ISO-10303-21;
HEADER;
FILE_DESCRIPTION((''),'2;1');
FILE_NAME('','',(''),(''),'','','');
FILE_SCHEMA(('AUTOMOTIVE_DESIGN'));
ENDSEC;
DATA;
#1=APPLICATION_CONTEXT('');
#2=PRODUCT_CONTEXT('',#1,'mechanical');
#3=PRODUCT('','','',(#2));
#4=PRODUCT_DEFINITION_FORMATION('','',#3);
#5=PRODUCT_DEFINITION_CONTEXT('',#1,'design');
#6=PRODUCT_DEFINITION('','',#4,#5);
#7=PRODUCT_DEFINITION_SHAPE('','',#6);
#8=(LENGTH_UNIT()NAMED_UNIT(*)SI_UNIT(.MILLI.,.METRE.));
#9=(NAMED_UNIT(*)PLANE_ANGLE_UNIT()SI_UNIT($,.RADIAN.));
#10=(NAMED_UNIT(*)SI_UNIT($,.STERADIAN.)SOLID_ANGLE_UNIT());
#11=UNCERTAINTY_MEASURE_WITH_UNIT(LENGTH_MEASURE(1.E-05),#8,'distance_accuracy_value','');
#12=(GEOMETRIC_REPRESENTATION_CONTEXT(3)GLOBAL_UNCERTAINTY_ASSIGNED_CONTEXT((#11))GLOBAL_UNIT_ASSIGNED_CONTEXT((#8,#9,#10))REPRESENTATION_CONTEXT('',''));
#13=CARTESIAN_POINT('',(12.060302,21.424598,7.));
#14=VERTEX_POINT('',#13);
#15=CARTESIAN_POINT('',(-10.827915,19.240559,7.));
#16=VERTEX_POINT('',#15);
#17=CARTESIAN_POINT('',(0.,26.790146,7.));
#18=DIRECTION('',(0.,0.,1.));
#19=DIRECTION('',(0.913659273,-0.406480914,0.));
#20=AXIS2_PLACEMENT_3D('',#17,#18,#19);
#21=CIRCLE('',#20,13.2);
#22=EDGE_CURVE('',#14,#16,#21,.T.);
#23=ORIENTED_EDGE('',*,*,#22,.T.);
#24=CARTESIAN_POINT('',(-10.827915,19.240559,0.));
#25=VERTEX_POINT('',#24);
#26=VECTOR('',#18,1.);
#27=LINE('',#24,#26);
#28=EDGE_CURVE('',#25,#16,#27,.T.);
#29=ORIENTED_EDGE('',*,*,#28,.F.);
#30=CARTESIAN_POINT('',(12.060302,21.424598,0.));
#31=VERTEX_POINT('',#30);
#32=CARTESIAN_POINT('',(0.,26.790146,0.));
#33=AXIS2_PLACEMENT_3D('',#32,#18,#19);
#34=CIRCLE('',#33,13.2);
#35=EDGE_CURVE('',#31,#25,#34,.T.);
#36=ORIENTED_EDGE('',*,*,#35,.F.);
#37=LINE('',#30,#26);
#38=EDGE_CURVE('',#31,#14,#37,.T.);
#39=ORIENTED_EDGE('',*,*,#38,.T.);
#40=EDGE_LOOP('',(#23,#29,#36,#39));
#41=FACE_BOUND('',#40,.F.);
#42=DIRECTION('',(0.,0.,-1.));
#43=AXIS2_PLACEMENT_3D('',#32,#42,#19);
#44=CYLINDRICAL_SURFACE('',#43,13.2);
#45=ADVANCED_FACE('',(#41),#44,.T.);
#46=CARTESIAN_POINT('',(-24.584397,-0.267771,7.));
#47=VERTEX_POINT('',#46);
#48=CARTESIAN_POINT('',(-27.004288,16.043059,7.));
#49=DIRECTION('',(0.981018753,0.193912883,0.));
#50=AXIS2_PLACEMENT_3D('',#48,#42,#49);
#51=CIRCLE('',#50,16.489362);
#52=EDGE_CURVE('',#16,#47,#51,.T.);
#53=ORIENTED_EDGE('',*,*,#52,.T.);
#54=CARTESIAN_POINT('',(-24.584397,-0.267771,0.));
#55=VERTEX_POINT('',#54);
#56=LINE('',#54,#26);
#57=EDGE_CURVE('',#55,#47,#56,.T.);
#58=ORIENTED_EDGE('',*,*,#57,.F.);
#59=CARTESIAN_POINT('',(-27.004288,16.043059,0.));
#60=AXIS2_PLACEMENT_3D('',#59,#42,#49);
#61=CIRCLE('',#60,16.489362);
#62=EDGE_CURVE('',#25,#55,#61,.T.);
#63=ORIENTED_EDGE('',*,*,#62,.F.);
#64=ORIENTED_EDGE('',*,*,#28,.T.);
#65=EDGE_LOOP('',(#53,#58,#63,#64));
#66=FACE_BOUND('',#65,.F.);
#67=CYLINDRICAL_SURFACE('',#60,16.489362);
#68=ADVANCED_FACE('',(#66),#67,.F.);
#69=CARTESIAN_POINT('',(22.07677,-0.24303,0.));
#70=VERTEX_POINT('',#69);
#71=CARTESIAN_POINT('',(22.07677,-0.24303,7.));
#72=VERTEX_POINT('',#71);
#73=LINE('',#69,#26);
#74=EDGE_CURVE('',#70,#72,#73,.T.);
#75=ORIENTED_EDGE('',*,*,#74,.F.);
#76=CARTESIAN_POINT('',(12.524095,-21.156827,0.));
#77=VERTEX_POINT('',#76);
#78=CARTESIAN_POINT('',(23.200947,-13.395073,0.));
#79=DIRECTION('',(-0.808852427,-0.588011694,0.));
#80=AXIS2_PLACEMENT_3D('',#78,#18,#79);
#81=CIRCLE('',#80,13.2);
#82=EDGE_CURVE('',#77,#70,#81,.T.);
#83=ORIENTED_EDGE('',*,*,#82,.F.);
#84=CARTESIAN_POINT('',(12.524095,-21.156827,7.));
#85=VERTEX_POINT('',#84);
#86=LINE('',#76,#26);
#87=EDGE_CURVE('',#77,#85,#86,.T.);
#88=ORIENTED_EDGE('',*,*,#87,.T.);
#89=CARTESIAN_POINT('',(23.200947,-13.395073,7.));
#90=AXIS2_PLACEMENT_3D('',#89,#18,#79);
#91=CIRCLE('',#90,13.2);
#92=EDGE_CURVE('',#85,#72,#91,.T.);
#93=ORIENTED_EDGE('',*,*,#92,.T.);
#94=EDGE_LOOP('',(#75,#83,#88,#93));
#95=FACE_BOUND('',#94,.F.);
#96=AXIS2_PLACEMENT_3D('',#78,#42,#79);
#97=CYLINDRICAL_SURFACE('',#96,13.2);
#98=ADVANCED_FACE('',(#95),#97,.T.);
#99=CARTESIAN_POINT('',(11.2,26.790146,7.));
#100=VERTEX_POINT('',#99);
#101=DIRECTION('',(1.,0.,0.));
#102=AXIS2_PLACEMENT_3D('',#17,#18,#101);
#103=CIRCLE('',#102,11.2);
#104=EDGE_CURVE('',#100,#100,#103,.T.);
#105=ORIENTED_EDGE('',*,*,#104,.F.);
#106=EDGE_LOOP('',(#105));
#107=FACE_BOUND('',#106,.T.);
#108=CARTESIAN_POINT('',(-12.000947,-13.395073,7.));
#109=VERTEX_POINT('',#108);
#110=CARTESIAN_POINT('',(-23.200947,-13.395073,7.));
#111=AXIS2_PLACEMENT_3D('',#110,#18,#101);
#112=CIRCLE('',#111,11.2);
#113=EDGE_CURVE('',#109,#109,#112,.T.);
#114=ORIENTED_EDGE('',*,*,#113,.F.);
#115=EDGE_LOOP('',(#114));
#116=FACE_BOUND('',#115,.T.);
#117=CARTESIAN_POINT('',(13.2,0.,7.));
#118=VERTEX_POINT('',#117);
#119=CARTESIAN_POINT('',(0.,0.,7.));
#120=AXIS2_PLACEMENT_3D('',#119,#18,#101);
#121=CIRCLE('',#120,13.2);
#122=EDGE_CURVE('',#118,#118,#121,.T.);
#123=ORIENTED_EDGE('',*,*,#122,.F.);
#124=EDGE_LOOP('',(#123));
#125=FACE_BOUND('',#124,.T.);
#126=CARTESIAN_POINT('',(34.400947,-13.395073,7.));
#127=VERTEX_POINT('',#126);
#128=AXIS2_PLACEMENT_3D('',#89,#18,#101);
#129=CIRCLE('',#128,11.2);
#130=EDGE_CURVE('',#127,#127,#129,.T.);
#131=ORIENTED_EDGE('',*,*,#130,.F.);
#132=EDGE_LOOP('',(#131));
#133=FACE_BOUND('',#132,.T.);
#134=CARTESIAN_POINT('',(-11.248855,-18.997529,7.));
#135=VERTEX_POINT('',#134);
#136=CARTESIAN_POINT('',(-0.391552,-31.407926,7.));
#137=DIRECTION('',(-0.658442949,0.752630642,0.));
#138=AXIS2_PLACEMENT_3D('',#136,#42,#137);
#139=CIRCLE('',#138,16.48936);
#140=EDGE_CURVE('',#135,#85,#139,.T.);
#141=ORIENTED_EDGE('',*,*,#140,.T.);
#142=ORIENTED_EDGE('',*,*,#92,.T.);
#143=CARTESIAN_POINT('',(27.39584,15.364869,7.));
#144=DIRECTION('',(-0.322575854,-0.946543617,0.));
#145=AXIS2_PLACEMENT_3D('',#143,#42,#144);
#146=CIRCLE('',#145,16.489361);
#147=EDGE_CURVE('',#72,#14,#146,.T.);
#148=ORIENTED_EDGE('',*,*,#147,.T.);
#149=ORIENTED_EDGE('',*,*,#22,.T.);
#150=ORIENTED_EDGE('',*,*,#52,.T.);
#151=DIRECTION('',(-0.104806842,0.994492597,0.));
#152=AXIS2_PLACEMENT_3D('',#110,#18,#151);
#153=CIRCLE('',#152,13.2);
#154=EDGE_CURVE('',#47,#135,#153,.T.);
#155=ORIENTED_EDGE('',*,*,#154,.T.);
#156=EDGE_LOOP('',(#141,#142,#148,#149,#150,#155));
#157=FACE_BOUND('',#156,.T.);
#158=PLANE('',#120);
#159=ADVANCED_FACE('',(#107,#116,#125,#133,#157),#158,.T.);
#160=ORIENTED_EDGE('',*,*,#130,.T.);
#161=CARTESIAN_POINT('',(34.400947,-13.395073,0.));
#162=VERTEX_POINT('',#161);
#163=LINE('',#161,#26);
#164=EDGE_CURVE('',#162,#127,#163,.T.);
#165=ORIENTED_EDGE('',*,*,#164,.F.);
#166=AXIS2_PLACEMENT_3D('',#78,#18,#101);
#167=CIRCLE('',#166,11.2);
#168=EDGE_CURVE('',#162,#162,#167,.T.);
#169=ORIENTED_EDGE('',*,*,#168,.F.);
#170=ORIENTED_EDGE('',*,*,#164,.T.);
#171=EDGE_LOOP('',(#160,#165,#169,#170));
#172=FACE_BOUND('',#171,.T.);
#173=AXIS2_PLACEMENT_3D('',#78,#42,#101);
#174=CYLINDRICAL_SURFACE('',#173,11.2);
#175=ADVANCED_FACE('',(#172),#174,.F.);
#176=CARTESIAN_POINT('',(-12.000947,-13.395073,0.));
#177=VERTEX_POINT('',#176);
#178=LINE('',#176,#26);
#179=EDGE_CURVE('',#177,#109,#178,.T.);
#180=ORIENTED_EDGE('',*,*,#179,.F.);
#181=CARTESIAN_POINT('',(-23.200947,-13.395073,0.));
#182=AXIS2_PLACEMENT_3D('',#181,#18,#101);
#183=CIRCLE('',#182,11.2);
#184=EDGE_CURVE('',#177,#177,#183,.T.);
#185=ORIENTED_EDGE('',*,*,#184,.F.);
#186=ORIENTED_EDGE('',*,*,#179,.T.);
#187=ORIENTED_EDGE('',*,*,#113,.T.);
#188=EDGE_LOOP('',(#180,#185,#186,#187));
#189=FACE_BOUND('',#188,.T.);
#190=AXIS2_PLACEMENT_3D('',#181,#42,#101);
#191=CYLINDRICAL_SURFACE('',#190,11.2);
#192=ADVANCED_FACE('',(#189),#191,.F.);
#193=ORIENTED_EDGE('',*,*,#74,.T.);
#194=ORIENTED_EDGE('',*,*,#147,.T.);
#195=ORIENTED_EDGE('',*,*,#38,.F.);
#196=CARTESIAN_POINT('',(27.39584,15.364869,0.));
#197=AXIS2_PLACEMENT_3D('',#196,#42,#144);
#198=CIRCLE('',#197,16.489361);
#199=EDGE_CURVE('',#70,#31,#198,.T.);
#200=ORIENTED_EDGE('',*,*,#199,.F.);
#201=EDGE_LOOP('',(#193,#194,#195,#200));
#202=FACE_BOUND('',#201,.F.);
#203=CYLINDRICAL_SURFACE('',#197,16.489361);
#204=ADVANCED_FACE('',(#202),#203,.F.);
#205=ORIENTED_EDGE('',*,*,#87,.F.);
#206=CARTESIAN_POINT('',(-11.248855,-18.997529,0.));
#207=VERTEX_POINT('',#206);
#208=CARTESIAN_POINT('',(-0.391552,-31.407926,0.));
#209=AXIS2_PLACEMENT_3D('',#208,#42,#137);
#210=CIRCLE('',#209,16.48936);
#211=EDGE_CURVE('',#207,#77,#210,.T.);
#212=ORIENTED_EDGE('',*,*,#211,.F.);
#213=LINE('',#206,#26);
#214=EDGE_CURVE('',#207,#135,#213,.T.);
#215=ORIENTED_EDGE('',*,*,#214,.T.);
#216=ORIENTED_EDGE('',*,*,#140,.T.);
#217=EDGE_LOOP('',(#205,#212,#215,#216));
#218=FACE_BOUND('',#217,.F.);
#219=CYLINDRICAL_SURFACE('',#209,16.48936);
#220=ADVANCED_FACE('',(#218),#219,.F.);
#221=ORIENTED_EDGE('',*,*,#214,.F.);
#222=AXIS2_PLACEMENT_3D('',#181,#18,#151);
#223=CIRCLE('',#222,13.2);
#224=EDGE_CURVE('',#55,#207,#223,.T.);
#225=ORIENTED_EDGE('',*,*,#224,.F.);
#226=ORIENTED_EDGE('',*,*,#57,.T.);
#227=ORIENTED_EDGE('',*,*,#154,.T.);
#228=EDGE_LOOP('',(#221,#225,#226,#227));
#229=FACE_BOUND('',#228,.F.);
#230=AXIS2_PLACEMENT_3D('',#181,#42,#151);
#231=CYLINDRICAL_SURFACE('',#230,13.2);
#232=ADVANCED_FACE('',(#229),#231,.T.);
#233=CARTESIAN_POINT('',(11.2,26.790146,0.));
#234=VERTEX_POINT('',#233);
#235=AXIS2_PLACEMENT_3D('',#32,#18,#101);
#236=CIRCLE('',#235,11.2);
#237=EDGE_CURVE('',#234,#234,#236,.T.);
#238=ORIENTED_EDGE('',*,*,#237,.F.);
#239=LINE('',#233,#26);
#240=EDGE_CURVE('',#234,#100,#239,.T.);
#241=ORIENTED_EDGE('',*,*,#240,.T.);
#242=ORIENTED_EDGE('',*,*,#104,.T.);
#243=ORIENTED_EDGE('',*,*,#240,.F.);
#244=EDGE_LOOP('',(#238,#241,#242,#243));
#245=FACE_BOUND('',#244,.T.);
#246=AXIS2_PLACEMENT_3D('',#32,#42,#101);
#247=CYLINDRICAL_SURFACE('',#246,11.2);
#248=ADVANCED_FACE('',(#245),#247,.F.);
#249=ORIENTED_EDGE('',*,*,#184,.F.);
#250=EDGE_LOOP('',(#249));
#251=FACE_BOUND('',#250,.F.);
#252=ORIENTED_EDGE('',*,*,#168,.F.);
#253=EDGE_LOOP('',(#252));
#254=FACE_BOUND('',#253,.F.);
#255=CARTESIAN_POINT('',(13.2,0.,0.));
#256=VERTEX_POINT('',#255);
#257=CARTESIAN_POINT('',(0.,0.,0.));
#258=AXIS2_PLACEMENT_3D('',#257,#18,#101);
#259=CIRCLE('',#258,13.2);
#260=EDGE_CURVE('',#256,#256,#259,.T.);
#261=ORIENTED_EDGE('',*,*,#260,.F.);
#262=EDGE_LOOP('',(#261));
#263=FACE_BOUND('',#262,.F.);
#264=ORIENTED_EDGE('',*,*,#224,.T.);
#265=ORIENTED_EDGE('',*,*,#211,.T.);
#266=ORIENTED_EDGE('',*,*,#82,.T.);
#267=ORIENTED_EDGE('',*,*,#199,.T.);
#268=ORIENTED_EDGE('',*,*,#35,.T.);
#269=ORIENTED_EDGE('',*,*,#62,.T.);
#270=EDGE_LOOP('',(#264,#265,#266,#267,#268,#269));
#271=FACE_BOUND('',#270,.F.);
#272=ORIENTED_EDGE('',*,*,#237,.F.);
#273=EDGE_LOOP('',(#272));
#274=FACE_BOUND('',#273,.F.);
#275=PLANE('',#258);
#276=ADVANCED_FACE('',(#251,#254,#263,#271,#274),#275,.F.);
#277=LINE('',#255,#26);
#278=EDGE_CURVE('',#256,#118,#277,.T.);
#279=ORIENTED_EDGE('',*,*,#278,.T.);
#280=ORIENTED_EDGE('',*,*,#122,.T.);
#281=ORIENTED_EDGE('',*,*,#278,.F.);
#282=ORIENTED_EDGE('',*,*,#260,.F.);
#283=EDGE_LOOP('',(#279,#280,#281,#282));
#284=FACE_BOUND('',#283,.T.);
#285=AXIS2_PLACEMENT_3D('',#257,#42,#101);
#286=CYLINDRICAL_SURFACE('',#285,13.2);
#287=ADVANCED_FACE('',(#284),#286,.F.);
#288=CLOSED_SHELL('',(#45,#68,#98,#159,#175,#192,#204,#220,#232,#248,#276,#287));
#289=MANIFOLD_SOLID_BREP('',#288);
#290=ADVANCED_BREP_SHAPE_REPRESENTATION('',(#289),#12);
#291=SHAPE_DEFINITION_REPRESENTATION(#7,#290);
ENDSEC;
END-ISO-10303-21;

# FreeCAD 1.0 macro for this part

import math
import FreeCAD as App
import Part
import Sketcher
Q = App.Units.Quantity

doc = App.newDocument("Part")
params = doc.addObject("Spreadsheet::Sheet", "Params")
for row, (alias, value) in enumerate([
    ("sketch1_diameter", "22.4 mm"),
    ("sketch1_diameter2", "22.4 mm"),
    ("sketch1_diameter3", "26.4 mm"),
    ("sketch1_diameter4", "22.4 mm"),
    ("sketch1_radius", "13.2 mm"),
    ("pad1_length", "7 mm"),
], start=1):
    params.set(f"A{row}", alias)
    params.set(f"B{row}", "=" + value)
    params.setAlias(f"B{row}", alias)

body = doc.addObject("PartDesign::Body", "Body")

# Sketch on XY plane
sketch1 = body.newObject("Sketcher::SketchObject", "Sketch")
sketch1.AttachmentSupport = (doc.getObject("XY_Plane"), [""])
sketch1.MapMode = "FlatFace"
sketch1.addGeometry([
    Part.ArcOfCircle(Part.Circle(App.Vector(27.39584, 15.364869, 0), App.Vector(0, 0, 1), 16.489361), math.radians(158.438899), math.radians(251.181227)),  # 0
    Part.ArcOfCircle(Part.Circle(App.Vector(0, 26.790146, 0), App.Vector(0, 0, 1), 13.2), math.radians(-23.983962), math.radians(214.885508)),  # 1
    Part.ArcOfCircle(Part.Circle(App.Vector(-27.004288, 16.043059, 0), App.Vector(0, 0, 1), 16.489362), math.radians(-81.561097), math.radians(11.181224)),  # 2
    Part.ArcOfCircle(Part.Circle(App.Vector(-23.200947, -13.395073, 0), App.Vector(0, 0, 1), 13.2), math.radians(96.016038), math.radians(334.885509)),  # 3
    Part.ArcOfCircle(Part.Circle(App.Vector(-0.391552, -31.407926, 0), App.Vector(0, 0, 1), 16.48936), math.radians(38.438895), math.radians(131.181231)),  # 4
    Part.ArcOfCircle(Part.Circle(App.Vector(23.200947, -13.395073, 0), App.Vector(0, 0, 1), 13.2), math.radians(-143.983961), math.radians(94.885509)),  # 5
    Part.Circle(App.Vector(-23.200947, -13.395073, 0), App.Vector(0, 0, 1), 11.2),  # 6
    Part.Circle(App.Vector(23.200947, -13.395073, 0), App.Vector(0, 0, 1), 11.2),  # 7
    Part.Circle(App.Vector(0, 0, 0), App.Vector(0, 0, 1), 13.2),  # 8
    Part.Circle(App.Vector(0, 26.790146, 0), App.Vector(0, 0, 1), 11.2),  # 9
], False)
sketch1.addConstraint([
    Sketcher.Constraint("Coincident", 0, 1, 1, 1),
    Sketcher.Constraint("Coincident", 1, 2, 2, 2),
    Sketcher.Constraint("Coincident", 2, 1, 3, 1),
    Sketcher.Constraint("Coincident", 3, 2, 4, 2),
    Sketcher.Constraint("Coincident", 4, 1, 5, 1),
    Sketcher.Constraint("Coincident", 5, 2, 0, 2),
    Sketcher.Constraint("Coincident", 8, 3, -1, 1),
    Sketcher.Constraint("Coincident", 6, 3, 3, 3),
    Sketcher.Constraint("Coincident", 7, 3, 5, 3),
    Sketcher.Constraint("Coincident", 9, 3, 1, 3),
    Sketcher.Constraint("PointOnObject", 1, 3, -2),
    Sketcher.Constraint("Diameter", 6, Q("22.4 mm")),
    Sketcher.Constraint("Diameter", 7, Q("22.4 mm")),
    Sketcher.Constraint("Diameter", 8, Q("26.4 mm")),
    Sketcher.Constraint("Diameter", 9, Q("22.4 mm")),
    Sketcher.Constraint("Radius", 1, Q("13.2 mm")),
    Sketcher.Constraint("Radius", 3, Q("13.2 mm")),
    Sketcher.Constraint("Radius", 5, Q("13.2 mm")),
    Sketcher.Constraint("Radius", 0, Q("16.489361 mm")),
    Sketcher.Constraint("Radius", 2, Q("16.489362 mm")),
    Sketcher.Constraint("Radius", 4, Q("16.48936 mm")),
    Sketcher.Constraint("DistanceX", -1, 1, 0, 1, Q("12.060302 mm")),
    Sketcher.Constraint("DistanceY", -1, 1, 0, 1, Q("21.424598 mm")),
    Sketcher.Constraint("DistanceX", 4, 3, 5, 3, Q("23.592499 mm")),
    Sketcher.Constraint("DistanceY", 2, 3, 1, 2, Q("3.1975 mm")),
    Sketcher.Constraint("DistanceY", 4, 3, 4, 1, Q("10.251099 mm")),
    Sketcher.Constraint("DistanceY", 5, 2, 0, 3, Q("15.607899 mm")),
    Sketcher.Constraint("DistanceX", -1, 1, 0, 3, Q("27.39584 mm")),
    Sketcher.Constraint("DistanceX", 2, 3, -1, 1, Q("27.004288 mm")),
    Sketcher.Constraint("DistanceY", 2, 1, -1, 1, Q("0.267771 mm")),
    Sketcher.Constraint("DistanceY", 3, 2, -1, 1, Q("18.997529 mm")),
    Sketcher.Constraint("DistanceX", 2, 3, 3, 3, Q("3.803342 mm")),
])
sketch1.setExpression("Constraints[11]", "Params.sketch1_diameter")
sketch1.setExpression("Constraints[12]", "Params.sketch1_diameter2")
sketch1.setExpression("Constraints[13]", "Params.sketch1_diameter3")
sketch1.setExpression("Constraints[14]", "Params.sketch1_diameter4")
sketch1.setExpression("Constraints[15]", "Params.sketch1_radius")
pad1 = body.newObject("PartDesign::Pad", "Pad")
pad1.Profile = sketch1
pad1.setExpression("Length", "Params.pad1_length")

doc.recompute()
